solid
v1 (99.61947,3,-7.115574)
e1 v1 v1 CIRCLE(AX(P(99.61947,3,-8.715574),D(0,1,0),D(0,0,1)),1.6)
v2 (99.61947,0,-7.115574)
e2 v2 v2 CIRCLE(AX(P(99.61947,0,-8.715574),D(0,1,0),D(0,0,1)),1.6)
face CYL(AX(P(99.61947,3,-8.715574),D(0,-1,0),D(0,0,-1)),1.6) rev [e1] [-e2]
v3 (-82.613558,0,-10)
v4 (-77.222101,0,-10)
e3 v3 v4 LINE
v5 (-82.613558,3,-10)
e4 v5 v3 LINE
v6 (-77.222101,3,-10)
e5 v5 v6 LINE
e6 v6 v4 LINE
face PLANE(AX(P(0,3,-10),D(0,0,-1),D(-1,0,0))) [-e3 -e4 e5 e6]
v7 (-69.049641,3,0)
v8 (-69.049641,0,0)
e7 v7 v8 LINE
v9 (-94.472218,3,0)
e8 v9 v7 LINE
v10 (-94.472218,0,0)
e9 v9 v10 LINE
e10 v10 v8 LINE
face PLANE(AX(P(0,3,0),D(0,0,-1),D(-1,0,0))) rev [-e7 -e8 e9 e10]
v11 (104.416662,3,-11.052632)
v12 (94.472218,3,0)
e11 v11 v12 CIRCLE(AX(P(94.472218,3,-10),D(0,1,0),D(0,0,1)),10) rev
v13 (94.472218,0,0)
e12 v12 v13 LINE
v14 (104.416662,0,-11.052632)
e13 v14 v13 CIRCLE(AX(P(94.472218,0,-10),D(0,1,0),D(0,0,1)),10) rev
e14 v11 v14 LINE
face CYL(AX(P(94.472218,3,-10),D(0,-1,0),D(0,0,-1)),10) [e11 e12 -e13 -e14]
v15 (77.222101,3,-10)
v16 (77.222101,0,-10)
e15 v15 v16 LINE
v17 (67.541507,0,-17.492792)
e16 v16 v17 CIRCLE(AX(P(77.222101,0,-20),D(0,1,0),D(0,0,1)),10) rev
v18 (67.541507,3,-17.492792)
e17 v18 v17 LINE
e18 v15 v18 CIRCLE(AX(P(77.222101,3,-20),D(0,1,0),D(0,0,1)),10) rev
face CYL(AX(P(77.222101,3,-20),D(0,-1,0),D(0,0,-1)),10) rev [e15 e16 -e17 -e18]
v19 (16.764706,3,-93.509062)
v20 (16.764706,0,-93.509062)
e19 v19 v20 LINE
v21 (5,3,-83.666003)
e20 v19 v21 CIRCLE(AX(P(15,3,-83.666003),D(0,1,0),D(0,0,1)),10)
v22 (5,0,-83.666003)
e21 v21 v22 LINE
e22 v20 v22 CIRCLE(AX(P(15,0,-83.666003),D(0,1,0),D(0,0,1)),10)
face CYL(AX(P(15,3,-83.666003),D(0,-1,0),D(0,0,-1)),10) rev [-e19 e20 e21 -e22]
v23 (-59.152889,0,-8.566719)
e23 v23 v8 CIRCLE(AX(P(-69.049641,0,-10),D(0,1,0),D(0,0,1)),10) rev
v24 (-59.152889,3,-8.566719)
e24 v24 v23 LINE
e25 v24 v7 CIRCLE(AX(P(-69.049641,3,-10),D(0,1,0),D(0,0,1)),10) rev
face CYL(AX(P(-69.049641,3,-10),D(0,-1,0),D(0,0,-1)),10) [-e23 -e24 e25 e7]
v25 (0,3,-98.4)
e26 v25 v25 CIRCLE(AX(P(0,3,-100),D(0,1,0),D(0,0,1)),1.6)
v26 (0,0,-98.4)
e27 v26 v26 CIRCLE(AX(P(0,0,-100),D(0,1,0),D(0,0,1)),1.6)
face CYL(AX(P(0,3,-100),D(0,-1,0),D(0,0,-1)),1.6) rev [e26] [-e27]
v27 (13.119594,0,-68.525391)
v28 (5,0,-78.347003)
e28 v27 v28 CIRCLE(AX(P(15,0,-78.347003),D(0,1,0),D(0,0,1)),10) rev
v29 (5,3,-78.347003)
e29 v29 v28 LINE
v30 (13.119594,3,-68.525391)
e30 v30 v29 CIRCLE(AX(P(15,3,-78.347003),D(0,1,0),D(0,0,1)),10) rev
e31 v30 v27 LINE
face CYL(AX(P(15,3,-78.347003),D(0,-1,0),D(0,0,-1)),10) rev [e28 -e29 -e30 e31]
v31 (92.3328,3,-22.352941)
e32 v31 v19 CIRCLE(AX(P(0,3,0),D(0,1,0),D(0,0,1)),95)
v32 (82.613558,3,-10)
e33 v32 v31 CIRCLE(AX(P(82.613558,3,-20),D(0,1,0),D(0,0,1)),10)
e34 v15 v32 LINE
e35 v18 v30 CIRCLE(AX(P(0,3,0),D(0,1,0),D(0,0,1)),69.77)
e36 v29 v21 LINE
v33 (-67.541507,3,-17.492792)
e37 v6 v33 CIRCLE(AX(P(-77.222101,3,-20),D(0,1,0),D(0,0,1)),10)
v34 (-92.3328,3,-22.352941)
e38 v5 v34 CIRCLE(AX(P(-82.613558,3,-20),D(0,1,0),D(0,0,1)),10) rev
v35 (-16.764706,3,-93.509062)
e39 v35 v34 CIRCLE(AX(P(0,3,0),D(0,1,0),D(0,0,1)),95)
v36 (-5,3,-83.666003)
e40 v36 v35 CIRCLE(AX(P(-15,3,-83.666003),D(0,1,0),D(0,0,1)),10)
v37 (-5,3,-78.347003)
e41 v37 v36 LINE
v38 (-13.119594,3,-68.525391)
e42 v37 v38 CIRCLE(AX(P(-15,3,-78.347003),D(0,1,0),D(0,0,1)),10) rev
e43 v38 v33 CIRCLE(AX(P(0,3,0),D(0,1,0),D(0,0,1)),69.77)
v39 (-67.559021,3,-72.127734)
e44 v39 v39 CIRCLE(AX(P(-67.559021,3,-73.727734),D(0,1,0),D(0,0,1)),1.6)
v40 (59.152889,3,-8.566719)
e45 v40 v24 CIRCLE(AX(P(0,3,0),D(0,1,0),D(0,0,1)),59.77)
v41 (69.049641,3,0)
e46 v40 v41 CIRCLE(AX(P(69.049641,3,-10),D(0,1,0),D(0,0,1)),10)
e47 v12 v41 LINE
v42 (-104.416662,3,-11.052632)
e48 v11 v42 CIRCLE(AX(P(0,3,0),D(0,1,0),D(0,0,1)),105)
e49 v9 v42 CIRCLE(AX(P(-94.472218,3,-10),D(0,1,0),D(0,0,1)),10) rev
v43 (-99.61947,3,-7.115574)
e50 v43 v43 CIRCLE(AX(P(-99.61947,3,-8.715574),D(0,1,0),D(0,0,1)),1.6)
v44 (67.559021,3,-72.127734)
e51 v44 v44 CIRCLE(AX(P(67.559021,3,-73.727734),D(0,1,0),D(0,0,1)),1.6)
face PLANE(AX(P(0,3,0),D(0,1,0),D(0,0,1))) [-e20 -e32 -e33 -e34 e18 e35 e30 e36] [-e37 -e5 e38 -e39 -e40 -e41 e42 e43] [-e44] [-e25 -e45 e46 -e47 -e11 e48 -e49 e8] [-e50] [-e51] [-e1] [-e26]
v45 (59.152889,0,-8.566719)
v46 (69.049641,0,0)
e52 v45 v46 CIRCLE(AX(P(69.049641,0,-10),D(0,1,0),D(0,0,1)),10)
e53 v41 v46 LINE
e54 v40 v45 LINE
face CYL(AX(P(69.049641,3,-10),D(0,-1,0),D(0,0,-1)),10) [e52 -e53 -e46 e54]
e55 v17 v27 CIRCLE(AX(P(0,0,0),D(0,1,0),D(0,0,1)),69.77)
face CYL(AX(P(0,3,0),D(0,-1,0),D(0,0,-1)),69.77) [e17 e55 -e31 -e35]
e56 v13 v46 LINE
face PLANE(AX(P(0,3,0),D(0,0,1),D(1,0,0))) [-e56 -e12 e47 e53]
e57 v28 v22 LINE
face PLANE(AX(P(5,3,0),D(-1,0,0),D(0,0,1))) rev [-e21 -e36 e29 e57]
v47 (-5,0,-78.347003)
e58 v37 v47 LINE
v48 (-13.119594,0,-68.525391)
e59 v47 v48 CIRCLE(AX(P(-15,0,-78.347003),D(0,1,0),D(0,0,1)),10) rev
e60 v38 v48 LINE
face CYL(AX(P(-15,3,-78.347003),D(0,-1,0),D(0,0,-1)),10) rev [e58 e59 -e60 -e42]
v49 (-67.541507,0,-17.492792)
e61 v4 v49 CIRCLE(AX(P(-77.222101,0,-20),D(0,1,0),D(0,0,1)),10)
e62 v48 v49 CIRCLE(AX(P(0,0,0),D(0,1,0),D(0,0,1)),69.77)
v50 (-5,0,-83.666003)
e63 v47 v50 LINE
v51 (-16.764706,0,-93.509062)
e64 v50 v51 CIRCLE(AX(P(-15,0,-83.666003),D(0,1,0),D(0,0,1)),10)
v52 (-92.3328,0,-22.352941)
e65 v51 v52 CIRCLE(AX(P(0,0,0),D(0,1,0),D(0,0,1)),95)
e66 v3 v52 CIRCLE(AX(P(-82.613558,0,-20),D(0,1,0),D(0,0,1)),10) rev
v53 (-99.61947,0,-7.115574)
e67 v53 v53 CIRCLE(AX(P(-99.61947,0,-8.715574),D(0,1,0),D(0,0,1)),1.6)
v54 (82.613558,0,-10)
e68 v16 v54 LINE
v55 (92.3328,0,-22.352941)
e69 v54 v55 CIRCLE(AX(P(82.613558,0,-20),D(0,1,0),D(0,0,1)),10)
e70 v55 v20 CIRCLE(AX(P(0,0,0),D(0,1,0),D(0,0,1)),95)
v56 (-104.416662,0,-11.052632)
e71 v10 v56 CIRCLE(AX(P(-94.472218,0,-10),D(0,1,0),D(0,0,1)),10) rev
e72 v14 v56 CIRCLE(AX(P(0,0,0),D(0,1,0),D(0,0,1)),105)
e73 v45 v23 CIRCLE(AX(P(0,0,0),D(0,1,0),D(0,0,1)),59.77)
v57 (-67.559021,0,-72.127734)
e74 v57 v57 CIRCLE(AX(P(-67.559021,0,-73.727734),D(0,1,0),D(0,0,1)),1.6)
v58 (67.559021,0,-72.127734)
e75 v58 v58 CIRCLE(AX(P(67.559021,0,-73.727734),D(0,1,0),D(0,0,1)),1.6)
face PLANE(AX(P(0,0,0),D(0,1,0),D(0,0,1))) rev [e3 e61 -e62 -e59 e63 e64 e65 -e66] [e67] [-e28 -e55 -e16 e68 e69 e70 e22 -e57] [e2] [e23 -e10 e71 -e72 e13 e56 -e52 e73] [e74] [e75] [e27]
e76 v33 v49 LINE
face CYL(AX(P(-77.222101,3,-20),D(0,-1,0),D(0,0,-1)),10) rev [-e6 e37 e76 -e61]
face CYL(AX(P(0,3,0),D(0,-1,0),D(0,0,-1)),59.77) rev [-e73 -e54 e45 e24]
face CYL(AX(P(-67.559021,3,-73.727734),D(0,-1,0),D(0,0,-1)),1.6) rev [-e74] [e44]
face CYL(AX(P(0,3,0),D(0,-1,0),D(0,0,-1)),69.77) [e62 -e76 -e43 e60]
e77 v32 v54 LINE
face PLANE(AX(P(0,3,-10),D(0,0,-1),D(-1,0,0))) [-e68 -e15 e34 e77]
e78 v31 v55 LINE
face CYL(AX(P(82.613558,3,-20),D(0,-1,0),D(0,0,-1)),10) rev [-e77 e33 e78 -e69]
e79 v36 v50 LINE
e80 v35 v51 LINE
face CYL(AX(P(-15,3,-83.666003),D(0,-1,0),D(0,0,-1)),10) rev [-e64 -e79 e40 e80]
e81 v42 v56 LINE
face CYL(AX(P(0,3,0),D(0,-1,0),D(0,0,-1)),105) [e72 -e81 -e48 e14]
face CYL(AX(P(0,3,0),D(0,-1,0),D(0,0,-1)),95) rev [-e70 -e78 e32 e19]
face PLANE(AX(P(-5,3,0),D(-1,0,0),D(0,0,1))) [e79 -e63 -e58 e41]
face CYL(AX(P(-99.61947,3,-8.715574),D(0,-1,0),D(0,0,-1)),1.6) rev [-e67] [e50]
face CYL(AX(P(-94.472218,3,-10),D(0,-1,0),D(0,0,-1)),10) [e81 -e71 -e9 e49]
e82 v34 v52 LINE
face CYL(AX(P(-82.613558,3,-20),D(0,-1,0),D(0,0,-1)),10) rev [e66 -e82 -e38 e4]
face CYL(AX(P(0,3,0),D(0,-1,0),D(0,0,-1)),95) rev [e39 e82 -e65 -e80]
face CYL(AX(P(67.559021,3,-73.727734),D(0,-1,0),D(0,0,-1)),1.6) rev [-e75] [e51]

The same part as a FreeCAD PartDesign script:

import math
import FreeCAD as App
import Part
import Sketcher
from FreeCAD import Vector
Q = App.Units.Quantity

doc = App.newDocument("Part")
params = doc.addObject("Spreadsheet::Sheet", "Params")
for row, (alias, value) in enumerate([
    ("sketch1_radius", "10 mm"),
    ("sketch1_radius2", "105 mm"),
    ("sketch1_radius3", "95 mm"),
    ("sketch1_diameter", "3.2 mm"),
    ("sketch1_radius4", "59.77 mm"),
    ("pad1_length", "3 mm"),
], start=1):
    params.set(f"A{row}", alias)
    params.set(f"B{row}", "=" + value)
    params.setAlias(f"B{row}", alias)

body = doc.addObject("PartDesign::Body", "Body")

sketch1 = body.newObject("Sketcher::SketchObject", "Sketch")
sketch1.AttachmentSupport = (doc.getObject("XZ_Plane"), [""])
sketch1.MapMode = "FlatFace"
sketch1.addGeometry([
    Part.LineSegment(Vector(-94.472218, 0, 0), Vector(-69.049641, 0, 0)),
    Part.ArcOfCircle(Part.Circle(Vector(-69.049641, -10, 0), Vector(0, 0, 1), 10), math.radians(8.240474), math.radians(90)),
    Part.ArcOfCircle(Part.Circle(Vector(0, 0, 0), Vector(0, 0, 1), 59.77), math.radians(-171.759526), math.radians(-8.240474)),
    Part.ArcOfCircle(Part.Circle(Vector(69.049641, -10, 0), Vector(0, 0, 1), 10), math.radians(90), math.radians(171.759526)),
    Part.LineSegment(Vector(69.049641, 0, 0), Vector(94.472218, 0, 0)),
    Part.ArcOfCircle(Part.Circle(Vector(94.472218, -10, 0), Vector(0, 0, 1), 10), math.radians(-6.042328), math.radians(90)),
    Part.ArcOfCircle(Part.Circle(Vector(0, 0, 0), Vector(0, 0, 1), 105), math.radians(-173.957672), math.radians(-6.042328)),
    Part.ArcOfCircle(Part.Circle(Vector(-94.472218, -10, 0), Vector(0, 0, 1), 10), math.radians(90), math.radians(186.042328)),
    Part.Circle(Vector(-99.61947, -8.715574, 0), Vector(0, 0, 1), 1.6),
    Part.LineSegment(Vector(-77.222101, -10, 0), Vector(-82.613558, -10, 0)),
    Part.ArcOfCircle(Part.Circle(Vector(-82.613558, -20, 0), Vector(0, 0, 1), 10), math.radians(90), math.radians(193.608961)),
    Part.ArcOfCircle(Part.Circle(Vector(0, 0, 0), Vector(0, 0, 1), 95), math.radians(-166.391039), math.radians(-100.164249)),
    Part.ArcOfCircle(Part.Circle(Vector(-15, -83.666003, 0), Vector(0, 0, 1), 10), math.radians(-100.164249), math.radians(0)),
    Part.LineSegment(Vector(-5, -83.666003, 0), Vector(-5, -78.347003, 0)),
    Part.ArcOfCircle(Part.Circle(Vector(-15, -78.347003, 0), Vector(0, 0, 1), 10), math.radians(0), math.radians(79.161541)),
    Part.ArcOfCircle(Part.Circle(Vector(0, 0, 0), Vector(0, 0, 1), 69.77), math.radians(-165.479829), math.radians(-100.838459)),
    Part.ArcOfCircle(Part.Circle(Vector(-77.222101, -20, 0), Vector(0, 0, 1), 10), math.radians(14.520171), math.radians(90)),
    Part.Circle(Vector(99.61947, -8.715574, 0), Vector(0, 0, 1), 1.6),
    Part.LineSegment(Vector(82.613558, -10, 0), Vector(77.222101, -10, 0)),
    Part.ArcOfCircle(Part.Circle(Vector(77.222101, -20, 0), Vector(0, 0, 1), 10), math.radians(90), math.radians(165.479829)),
    Part.ArcOfCircle(Part.Circle(Vector(0, 0, 0), Vector(0, 0, 1), 69.77), math.radians(-79.161541), math.radians(-14.520171)),
    Part.ArcOfCircle(Part.Circle(Vector(15, -78.347003, 0), Vector(0, 0, 1), 10), math.radians(100.838459), math.radians(180)),
    Part.LineSegment(Vector(5, -78.347003, 0), Vector(5, -83.666003, 0)),
    Part.ArcOfCircle(Part.Circle(Vector(15, -83.666003, 0), Vector(0, 0, 1), 10), math.radians(180), math.radians(280.164249)),
    Part.ArcOfCircle(Part.Circle(Vector(0, 0, 0), Vector(0, 0, 1), 95), math.radians(-79.835751), math.radians(-13.608961)),
    Part.ArcOfCircle(Part.Circle(Vector(82.613558, -20, 0), Vector(0, 0, 1), 10), math.radians(-13.608961), math.radians(90)),
    Part.Circle(Vector(-67.559021, -73.727734, 0), Vector(0, 0, 1), 1.6),
    Part.Circle(Vector(67.559021, -73.727734, 0), Vector(0, 0, 1), 1.6),
    Part.Circle(Vector(0, -100, 0), Vector(0, 0, 1), 1.6),
], False)
sketch1.addConstraint([
    Sketcher.Constraint("Tangent", 0, 2, 1, 2),
    Sketcher.Constraint("Tangent", 1, 1, 2, 1),
    Sketcher.Constraint("Tangent", 2, 2, 3, 2),
    Sketcher.Constraint("Tangent", 3, 1, 4, 1),
    Sketcher.Constraint("Tangent", 4, 2, 5, 2),
    Sketcher.Constraint("Tangent", 5, 1, 6, 2),
    Sketcher.Constraint("Tangent", 6, 1, 7, 2),
    Sketcher.Constraint("Tangent", 7, 1, 0, 1),
    Sketcher.Constraint("Tangent", 9, 2, 10, 1),
    Sketcher.Constraint("Tangent", 10, 2, 11, 1),
    Sketcher.Constraint("Tangent", 11, 2, 12, 1),
    Sketcher.Constraint("Tangent", 12, 2, 13, 1),
    Sketcher.Constraint("Tangent", 13, 2, 14, 1),
    Sketcher.Constraint("Tangent", 14, 2, 15, 2),
    Sketcher.Constraint("Tangent", 15, 1, 16, 1),
    Sketcher.Constraint("Tangent", 16, 2, 9, 1),
    Sketcher.Constraint("Tangent", 18, 2, 19, 1),
    Sketcher.Constraint("Tangent", 19, 2, 20, 2),
    Sketcher.Constraint("Tangent", 20, 1, 21, 1),
    Sketcher.Constraint("Tangent", 21, 2, 22, 1),
    Sketcher.Constraint("Tangent", 22, 2, 23, 1),
    Sketcher.Constraint("Tangent", 23, 2, 24, 1),
    Sketcher.Constraint("Tangent", 24, 2, 25, 1),
    Sketcher.Constraint("Tangent", 25, 2, 18, 1),
    Sketcher.Constraint("Horizontal", 0),
    Sketcher.Constraint("Horizontal", 4),
    Sketcher.Constraint("Horizontal", 9),
    Sketcher.Constraint("Vertical", 13),
    Sketcher.Constraint("Horizontal", 18),
    Sketcher.Constraint("Vertical", 22),
    Sketcher.Constraint("Coincident", 2, 3, -1, 1),
    Sketcher.Constraint("Coincident", 6, 3, -1, 1),
    Sketcher.Constraint("Coincident", 11, 3, -1, 1),
    Sketcher.Constraint("Coincident", 15, 3, -1, 1),
    Sketcher.Constraint("Coincident", 20, 3, -1, 1),
    Sketcher.Constraint("Coincident", 24, 3, -1, 1),
    Sketcher.Constraint("Equal", 1, 3),
    Sketcher.Constraint("Equal", 3, 5),
    Sketcher.Constraint("Equal", 5, 7),
    Sketcher.Constraint("Equal", 7, 10),
    Sketcher.Constraint("Equal", 10, 12),
    Sketcher.Constraint("Equal", 12, 14),
    Sketcher.Constraint("Equal", 14, 16),
    Sketcher.Constraint("Equal", 8, 17),
    Sketcher.Constraint("Equal", 16, 19),
    Sketcher.Constraint("Equal", 15, 20),
    Sketcher.Constraint("Equal", 19, 21),
    Sketcher.Constraint("Equal", 21, 23),
    Sketcher.Constraint("Equal", 11, 24),
    Sketcher.Constraint("Equal", 23, 25),
    Sketcher.Constraint("Equal", 17, 26),
    Sketcher.Constraint("Equal", 26, 27),
    Sketcher.Constraint("Equal", 27, 28),
    Sketcher.Constraint("Symmetric", 0, 2, 3, 1, -1, 1),
    Sketcher.Constraint("Symmetric", 8, 3, 17, 3, -2),
    Sketcher.Constraint("Symmetric", 26, 3, 27, 3, -2),
    Sketcher.Constraint("PointOnObject", 28, 3, -2),
    Sketcher.Constraint("Horizontal", 16, 3, 19, 3),
    Sketcher.Constraint("Horizontal", 14, 3, 21, 3),
    Sketcher.Constraint("Horizontal", 7, 3, 9, 2),
    Sketcher.Constraint("Radius", 1, Q("10 mm")),
    Sketcher.Constraint("Radius", 6, Q("105 mm")),
    Sketcher.Constraint("Radius", 11, Q("95 mm")),
    Sketcher.Constraint("Diameter", 8, Q("3.2 mm")),
    Sketcher.Constraint("Radius", 2, Q("59.77 mm")),
    Sketcher.Constraint("Radius", 15, Q("69.77 mm")),
    Sketcher.Constraint("DistanceX", 12, 3, -1, 1, Q("15 mm")),
    Sketcher.Constraint("DistanceY", 28, 3, -1, 1, Q("100 mm")),
    Sketcher.Constraint("DistanceX", 8, 3, -1, 1, Q("99.61947 mm")),
    Sketcher.Constraint("DistanceX", 26, 3, -1, 1, Q("67.559021 mm")),
    Sketcher.Constraint("DistanceY", 14, 3, 26, 3, Q("4.619269 mm")),
    Sketcher.Constraint("DistanceY", 8, 3, -1, 1, Q("8.715574 mm")),
])
sketch1.setExpression("Constraints[60]", "Params.sketch1_radius")
sketch1.setExpression("Constraints[61]", "Params.sketch1_radius2")
sketch1.setExpression("Constraints[62]", "Params.sketch1_radius3")
sketch1.setExpression("Constraints[63]", "Params.sketch1_diameter")
sketch1.setExpression("Constraints[64]", "Params.sketch1_radius4")
pad1 = body.newObject("PartDesign::Pad", "Pad")
pad1.Profile = sketch1
pad1.setExpression("Length", "Params.pad1_length")
pad1.Reversed = True

doc.recompute()
